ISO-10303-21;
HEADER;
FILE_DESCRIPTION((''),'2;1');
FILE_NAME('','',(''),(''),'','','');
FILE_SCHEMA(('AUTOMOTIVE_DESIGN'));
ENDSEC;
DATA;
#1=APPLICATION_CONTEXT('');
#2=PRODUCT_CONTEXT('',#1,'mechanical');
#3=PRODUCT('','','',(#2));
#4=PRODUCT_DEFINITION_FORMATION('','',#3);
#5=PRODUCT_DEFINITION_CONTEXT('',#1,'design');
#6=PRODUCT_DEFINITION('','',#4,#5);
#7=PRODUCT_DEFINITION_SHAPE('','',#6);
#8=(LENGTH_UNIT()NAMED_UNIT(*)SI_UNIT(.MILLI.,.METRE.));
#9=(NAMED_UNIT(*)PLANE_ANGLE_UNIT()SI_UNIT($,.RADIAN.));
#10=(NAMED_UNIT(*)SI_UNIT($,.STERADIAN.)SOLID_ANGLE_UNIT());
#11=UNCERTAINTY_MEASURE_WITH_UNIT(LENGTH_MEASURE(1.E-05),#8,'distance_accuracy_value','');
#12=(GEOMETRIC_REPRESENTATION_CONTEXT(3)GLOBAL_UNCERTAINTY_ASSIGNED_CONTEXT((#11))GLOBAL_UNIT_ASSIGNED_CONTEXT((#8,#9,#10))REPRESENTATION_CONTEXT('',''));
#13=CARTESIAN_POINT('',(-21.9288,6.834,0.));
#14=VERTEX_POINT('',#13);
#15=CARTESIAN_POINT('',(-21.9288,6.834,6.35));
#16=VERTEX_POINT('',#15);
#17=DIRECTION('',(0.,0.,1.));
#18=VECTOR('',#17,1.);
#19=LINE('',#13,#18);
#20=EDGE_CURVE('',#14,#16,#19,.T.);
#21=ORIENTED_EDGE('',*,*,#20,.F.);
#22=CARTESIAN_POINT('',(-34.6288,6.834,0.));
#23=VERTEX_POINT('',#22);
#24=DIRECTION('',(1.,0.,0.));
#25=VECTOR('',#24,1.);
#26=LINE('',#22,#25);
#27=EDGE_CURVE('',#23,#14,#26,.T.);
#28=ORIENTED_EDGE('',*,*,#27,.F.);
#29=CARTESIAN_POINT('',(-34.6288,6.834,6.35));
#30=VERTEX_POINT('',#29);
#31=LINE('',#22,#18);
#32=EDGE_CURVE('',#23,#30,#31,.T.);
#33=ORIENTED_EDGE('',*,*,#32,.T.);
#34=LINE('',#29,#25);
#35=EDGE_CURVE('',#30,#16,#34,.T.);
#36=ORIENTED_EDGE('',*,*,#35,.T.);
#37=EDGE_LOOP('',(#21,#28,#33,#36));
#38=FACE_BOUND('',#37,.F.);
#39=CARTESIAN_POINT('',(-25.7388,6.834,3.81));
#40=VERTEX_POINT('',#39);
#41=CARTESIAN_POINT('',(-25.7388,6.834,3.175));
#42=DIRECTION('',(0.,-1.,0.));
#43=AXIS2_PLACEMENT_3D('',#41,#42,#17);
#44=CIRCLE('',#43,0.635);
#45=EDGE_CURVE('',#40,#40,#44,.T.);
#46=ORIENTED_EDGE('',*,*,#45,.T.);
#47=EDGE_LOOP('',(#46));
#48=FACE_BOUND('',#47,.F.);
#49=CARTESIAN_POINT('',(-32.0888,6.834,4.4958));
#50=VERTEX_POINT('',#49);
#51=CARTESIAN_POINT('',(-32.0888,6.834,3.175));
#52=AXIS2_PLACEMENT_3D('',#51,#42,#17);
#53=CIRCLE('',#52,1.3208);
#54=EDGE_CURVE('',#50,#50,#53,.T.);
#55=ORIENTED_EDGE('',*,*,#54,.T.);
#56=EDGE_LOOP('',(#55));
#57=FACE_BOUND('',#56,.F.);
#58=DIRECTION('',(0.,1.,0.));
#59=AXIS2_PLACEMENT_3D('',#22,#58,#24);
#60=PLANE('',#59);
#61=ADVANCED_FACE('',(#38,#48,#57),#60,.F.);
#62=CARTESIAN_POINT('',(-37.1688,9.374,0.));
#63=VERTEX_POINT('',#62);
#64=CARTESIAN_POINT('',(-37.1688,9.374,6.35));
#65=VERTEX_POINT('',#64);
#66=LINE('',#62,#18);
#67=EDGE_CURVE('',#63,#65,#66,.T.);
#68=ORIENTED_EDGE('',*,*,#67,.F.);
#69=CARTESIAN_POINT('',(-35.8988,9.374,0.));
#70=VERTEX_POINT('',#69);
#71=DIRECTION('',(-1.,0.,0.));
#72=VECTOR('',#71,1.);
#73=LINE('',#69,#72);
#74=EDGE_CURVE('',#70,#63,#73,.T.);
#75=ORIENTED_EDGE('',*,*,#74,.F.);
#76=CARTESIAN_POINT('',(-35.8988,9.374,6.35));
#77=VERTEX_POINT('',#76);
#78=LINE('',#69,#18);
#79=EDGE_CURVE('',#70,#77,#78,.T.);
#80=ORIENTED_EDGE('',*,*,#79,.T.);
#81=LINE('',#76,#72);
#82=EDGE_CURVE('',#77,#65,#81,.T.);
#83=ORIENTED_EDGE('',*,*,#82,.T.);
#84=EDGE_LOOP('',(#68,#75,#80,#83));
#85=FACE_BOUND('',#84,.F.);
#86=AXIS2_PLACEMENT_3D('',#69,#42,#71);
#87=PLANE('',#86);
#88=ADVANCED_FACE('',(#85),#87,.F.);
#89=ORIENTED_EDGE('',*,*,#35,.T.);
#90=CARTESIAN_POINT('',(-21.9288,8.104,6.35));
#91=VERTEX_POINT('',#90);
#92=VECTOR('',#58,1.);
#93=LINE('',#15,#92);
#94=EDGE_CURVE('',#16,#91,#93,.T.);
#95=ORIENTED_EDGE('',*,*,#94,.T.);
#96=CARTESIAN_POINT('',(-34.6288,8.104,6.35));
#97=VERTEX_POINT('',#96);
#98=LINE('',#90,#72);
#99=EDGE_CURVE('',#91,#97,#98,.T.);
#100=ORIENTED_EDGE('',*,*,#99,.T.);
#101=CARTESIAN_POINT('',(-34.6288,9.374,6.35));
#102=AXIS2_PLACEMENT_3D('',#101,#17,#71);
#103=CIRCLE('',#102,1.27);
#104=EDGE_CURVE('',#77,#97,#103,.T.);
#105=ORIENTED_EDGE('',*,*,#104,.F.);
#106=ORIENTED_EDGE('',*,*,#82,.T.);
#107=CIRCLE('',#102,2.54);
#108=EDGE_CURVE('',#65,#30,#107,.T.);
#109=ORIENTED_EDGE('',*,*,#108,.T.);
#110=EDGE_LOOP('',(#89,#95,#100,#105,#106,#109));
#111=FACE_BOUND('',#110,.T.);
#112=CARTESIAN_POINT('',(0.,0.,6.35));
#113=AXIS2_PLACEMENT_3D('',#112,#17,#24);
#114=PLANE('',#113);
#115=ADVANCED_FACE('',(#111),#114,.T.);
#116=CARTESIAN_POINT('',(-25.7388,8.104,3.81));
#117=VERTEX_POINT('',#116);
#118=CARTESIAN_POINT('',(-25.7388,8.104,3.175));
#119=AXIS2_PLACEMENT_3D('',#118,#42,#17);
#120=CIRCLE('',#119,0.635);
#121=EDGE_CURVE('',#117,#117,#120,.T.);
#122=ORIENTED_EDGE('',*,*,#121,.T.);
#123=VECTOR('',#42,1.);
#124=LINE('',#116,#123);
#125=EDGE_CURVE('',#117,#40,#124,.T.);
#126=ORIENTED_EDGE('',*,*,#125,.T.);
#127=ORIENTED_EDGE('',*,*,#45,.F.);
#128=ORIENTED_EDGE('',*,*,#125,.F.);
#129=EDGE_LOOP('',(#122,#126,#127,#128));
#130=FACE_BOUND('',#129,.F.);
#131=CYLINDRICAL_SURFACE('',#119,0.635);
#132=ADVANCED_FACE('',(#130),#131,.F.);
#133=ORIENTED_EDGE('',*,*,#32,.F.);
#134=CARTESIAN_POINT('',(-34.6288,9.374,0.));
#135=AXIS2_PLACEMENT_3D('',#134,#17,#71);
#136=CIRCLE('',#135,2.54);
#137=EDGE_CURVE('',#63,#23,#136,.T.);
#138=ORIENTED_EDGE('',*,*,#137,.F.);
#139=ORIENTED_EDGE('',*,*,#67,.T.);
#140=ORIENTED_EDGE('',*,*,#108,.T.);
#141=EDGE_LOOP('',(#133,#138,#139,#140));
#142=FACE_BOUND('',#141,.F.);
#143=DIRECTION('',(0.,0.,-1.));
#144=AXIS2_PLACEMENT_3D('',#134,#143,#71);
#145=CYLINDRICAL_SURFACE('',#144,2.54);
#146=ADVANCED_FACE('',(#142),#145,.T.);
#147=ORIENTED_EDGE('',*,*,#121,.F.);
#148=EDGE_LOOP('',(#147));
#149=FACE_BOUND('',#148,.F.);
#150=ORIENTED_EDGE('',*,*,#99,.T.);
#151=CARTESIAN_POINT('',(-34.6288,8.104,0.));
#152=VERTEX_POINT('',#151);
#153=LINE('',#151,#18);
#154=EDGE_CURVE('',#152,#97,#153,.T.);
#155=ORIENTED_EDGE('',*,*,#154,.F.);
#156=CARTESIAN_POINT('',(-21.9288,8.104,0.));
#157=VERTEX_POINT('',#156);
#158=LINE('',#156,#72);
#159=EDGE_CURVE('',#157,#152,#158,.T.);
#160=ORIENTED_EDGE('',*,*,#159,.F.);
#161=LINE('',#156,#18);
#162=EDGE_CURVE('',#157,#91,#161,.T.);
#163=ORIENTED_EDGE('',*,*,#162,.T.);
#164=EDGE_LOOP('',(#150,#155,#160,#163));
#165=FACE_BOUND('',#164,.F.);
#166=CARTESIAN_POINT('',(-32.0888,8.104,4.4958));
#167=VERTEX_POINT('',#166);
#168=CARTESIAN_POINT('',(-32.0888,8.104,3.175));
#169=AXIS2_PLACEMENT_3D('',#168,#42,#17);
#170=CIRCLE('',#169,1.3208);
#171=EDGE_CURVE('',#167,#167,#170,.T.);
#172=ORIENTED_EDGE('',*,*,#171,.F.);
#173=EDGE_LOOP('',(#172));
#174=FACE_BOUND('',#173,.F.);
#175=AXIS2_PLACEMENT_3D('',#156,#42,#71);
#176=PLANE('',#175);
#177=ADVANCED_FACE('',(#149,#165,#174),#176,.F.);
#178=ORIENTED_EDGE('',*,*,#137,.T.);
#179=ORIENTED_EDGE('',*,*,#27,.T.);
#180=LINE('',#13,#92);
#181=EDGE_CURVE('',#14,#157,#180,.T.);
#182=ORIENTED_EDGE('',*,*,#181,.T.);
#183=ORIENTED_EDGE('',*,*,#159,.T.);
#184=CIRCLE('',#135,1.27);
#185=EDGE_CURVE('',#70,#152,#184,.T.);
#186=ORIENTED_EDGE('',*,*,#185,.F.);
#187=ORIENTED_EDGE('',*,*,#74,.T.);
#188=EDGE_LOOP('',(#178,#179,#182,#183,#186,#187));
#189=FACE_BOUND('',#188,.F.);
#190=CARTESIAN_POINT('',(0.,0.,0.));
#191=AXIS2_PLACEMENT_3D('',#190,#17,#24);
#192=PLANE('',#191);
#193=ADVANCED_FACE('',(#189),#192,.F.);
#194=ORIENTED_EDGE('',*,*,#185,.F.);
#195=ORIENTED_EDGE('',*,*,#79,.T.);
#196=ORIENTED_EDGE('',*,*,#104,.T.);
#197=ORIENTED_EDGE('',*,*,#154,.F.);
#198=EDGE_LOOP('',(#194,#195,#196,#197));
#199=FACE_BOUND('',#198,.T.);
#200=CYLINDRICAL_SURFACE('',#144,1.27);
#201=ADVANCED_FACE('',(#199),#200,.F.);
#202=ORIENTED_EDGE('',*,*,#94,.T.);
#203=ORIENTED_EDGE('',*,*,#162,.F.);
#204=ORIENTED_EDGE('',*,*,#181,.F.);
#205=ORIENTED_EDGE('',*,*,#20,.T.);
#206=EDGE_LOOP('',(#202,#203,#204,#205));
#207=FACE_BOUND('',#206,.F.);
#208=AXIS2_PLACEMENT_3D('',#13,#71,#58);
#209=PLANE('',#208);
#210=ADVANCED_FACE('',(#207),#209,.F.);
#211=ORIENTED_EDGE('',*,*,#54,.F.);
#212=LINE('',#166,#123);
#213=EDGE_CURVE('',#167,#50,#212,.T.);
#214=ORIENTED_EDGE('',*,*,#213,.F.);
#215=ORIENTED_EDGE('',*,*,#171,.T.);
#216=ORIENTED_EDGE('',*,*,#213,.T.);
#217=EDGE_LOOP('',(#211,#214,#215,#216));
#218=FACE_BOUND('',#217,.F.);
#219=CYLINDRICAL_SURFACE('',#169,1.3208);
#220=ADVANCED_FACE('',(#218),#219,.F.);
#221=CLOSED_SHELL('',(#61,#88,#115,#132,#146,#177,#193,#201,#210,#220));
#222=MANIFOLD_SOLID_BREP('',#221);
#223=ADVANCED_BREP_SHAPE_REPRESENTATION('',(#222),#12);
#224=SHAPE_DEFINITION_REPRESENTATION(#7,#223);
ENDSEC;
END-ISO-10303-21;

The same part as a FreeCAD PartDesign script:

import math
import FreeCAD as App
import Part
import Sketcher
from FreeCAD import Vector
Q = App.Units.Quantity

doc = App.newDocument("Part")
body = doc.addObject("PartDesign::Body", "Body")

# Sketch on XY plane
sketch1 = body.newObject("Sketcher::SketchObject", "Sketch")
sketch1.AttachmentSupport = (doc.getObject("XY_Plane"), [""])
sketch1.MapMode = "FlatFace"
sketch1.addGeometry([
    Part.ArcOfCircle(Part.Circle(Vector(-34.6, 9.4, 0), Vector(0, 0, 1), 2.5), math.radians(180), math.radians(270)),  # 0
    Part.LineSegment(Vector(-34.6, 6.8, 0), Vector(-21.9, 6.8, 0)),  # 1
    Part.LineSegment(Vector(-21.9, 6.8, 0), Vector(-21.9, 8.1, 0)),  # 2
    Part.LineSegment(Vector(-21.9, 8.1, 0), Vector(-34.6, 8.1, 0)),  # 3
    Part.ArcOfCircle(Part.Circle(Vector(-34.6, 9.4, 0), Vector(0, 0, 1), 1.3), math.radians(180), math.radians(270)),  # 4
    Part.LineSegment(Vector(-35.9, 9.4, 0), Vector(-37.2, 9.4, 0)),  # 5
], False)
sketch1.addConstraint([
    Sketcher.Constraint("Tangent", 0, 2, 1, 1),
    Sketcher.Constraint("Coincident", 1, 2, 2, 1),
    Sketcher.Constraint("Coincident", 2, 2, 3, 1),
    Sketcher.Constraint("Tangent", 3, 2, 4, 2),
    Sketcher.Constraint("Coincident", 4, 1, 5, 1),
    Sketcher.Constraint("Coincident", 5, 2, 0, 1),
    Sketcher.Constraint("Horizontal", 1),
    Sketcher.Constraint("Vertical", 2),
    Sketcher.Constraint("Horizontal", 3),
    Sketcher.Constraint("Horizontal", 5),
    Sketcher.Constraint("Coincident", 4, 3, 0, 3),
    Sketcher.Constraint("Horizontal", 0, 3, 4, 1),
    Sketcher.Constraint("Radius", 0, Q("0.1 in")),
    Sketcher.Constraint("Radius", 4, Q("0.05 in")),
    Sketcher.Constraint("DistanceX", 1, 1, 1, 2, Q("0.5 in")),
    Sketcher.Constraint("DistanceX", 0, 3, -1, 1, 34.6288),
    Sketcher.Constraint("DistanceY", -1, 1, 0, 3, 9.374),
])
pad1 = body.newObject("PartDesign::Pad", "Pad")
pad1.Profile = sketch1
pad1.Length = Q("0.25 in")

# Sketch on XZ plane
sketch2 = body.newObject("Sketcher::SketchObject", "Sketch001")
sketch2.AttachmentSupport = (doc.getObject("XZ_Plane"), [""])
sketch2.MapMode = "FlatFace"
sketch2.AttachmentOffset = App.Placement(Vector(0, 0, -8.104), App.Rotation())
sketch2.addGeometry([
    Part.Circle(Vector(-32.1, 3.2, 0), Vector(0, 0, 1), 1.3),
    Part.Circle(Vector(-32.1, 3.2, 0), Vector(0, 0, 1), 1.3),
], False)
sketch2.addConstraint([
    Sketcher.Constraint("Coincident", 1, 3, 0, 3),
    Sketcher.Constraint("Equal", 0, 1),
    Sketcher.Constraint("Diameter", 0, Q("0.104 in")),
    Sketcher.Constraint("DistanceY", -1, 1, 0, 3, Q("0.125 in")),
    Sketcher.Constraint("DistanceX", 0, 3, -1, 1, 32.0888),
])
doc.recompute()
hole = body.newObject("PartDesign::Hole", "Hole")
hole.Profile = sketch2
hole.ThreadType = "None"
hole.Diameter = Q("0.104 in")
hole.DepthType = "ThroughAll"
hole.Reversed = True

# Sketch on XZ plane
sketch3 = body.newObject("Sketcher::SketchObject", "Sketch002")
sketch3.AttachmentSupport = (doc.getObject("XZ_Plane"), [""])
sketch3.MapMode = "FlatFace"
sketch3.AttachmentOffset = App.Placement(Vector(0, 0, -8.104), App.Rotation())
sketch3.addGeometry(Part.Circle(Vector(-25.7, 3.2, 0), Vector(0, 0, 1), 0.6), False)
sketch3.addConstraint([
    Sketcher.Constraint("Diameter", 0, Q("0.05 in")),
    Sketcher.Constraint("DistanceY", -1, 1, 0, 3, Q("0.125 in")),
    Sketcher.Constraint("DistanceX", 0, 3, -1, 1, 25.7388),
])
doc.recompute()
hole2 = body.newObject("PartDesign::Hole", "Hole001")
hole2.Profile = sketch3
hole2.ThreadType = "None"
hole2.Diameter = Q("0.05 in")
hole2.DepthType = "ThroughAll"
hole2.Reversed = True

doc.recompute()
